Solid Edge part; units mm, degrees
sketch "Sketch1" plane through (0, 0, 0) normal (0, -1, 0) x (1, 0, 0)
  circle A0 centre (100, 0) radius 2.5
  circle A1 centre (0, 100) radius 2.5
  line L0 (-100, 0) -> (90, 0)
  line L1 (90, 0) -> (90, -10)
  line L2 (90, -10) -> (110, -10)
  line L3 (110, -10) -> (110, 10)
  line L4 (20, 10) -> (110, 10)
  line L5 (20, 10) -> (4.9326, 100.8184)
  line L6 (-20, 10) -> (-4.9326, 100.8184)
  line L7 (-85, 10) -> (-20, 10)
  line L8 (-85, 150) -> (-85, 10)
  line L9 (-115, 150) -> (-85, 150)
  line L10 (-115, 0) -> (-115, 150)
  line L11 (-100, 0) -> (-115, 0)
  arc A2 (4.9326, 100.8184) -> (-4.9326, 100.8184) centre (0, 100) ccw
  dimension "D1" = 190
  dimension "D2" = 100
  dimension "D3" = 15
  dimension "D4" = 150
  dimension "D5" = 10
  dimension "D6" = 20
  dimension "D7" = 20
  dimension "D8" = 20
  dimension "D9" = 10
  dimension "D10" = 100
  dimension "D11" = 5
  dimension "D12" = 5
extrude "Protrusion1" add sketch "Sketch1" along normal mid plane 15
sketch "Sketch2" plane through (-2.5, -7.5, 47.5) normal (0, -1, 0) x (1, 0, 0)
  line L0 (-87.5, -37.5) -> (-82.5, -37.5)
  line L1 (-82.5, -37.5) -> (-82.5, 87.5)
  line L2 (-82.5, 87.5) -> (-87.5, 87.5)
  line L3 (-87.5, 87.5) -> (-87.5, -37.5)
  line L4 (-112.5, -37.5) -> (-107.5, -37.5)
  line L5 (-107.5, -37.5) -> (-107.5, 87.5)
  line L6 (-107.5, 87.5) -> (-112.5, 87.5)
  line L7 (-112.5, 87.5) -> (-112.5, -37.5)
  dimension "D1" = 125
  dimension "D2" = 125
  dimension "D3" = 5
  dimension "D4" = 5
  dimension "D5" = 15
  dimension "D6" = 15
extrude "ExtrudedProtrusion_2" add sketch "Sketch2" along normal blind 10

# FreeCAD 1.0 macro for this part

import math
import FreeCAD as App
import Part
import Sketcher
Q = App.Units.Quantity


def add_polygon(sketch, points):
    """Adds a closed chain of lines whose ends are joined by coincident constraints."""
    first, n = sketch.GeometryCount, len(points)
    for a, b in zip(points, points[1:] + points[:1]):
        sketch.addGeometry(Part.LineSegment(App.Vector(*a, 0), App.Vector(*b, 0)), False)
    for i in range(n):
        sketch.addConstraint(Sketcher.Constraint("Coincident", first + i, 2, first + (i + 1) % n, 1))

doc = App.newDocument("Part")
body = doc.addObject("PartDesign::Body", "Body")

# Sketch on XZ plane
sketch1 = body.newObject("Sketcher::SketchObject", "Sketch")
sketch1.AttachmentSupport = (doc.getObject("XZ_Plane"), [""])
sketch1.MapMode = "FlatFace"
sketch1.addGeometry([
    Part.LineSegment(App.Vector(-115, 0, 0), App.Vector(90, 0, 0)),  # 0
    Part.LineSegment(App.Vector(90, 0, 0), App.Vector(90, -10, 0)),  # 1
    Part.LineSegment(App.Vector(90, -10, 0), App.Vector(110, -10, 0)),  # 2
    Part.LineSegment(App.Vector(110, -10, 0), App.Vector(110, 10, 0)),  # 3
    Part.LineSegment(App.Vector(110, 10, 0), App.Vector(20, 10, 0)),  # 4
    Part.LineSegment(App.Vector(20, 10, 0), App.Vector(4.9, 100.8, 0)),  # 5
    Part.ArcOfCircle(Part.Circle(App.Vector(0, 100, 0), App.Vector(0, 0, 1), 5), math.radians(9), math.radians(171)),  # 6
    Part.LineSegment(App.Vector(-4.9, 100.8, 0), App.Vector(-20, 10, 0)),  # 7
    Part.LineSegment(App.Vector(-20, 10, 0), App.Vector(-85, 10, 0)),  # 8
    Part.LineSegment(App.Vector(-85, 10, 0), App.Vector(-85, 150, 0)),  # 9
    Part.LineSegment(App.Vector(-85, 150, 0), App.Vector(-115, 150, 0)),  # 10
    Part.LineSegment(App.Vector(-115, 150, 0), App.Vector(-115, 0, 0)),  # 11
    Part.Circle(App.Vector(100, 0, 0), App.Vector(0, 0, 1), 2.5),  # 12
    Part.Circle(App.Vector(0, 100, 0), App.Vector(0, 0, 1), 2.5),  # 13
], False)
sketch1.addConstraint([
    Sketcher.Constraint("Coincident", 0, 2, 1, 1),
    Sketcher.Constraint("Coincident", 1, 2, 2, 1),
    Sketcher.Constraint("Coincident", 2, 2, 3, 1),
    Sketcher.Constraint("Coincident", 3, 2, 4, 1),
    Sketcher.Constraint("Coincident", 4, 2, 5, 1),
    Sketcher.Constraint("Tangent", 5, 2, 6, 1),
    Sketcher.Constraint("Tangent", 6, 2, 7, 1),
    Sketcher.Constraint("Coincident", 7, 2, 8, 1),
    Sketcher.Constraint("Coincident", 8, 2, 9, 1),
    Sketcher.Constraint("Coincident", 9, 2, 10, 1),
    Sketcher.Constraint("Coincident", 10, 2, 11, 1),
    Sketcher.Constraint("Coincident", 11, 2, 0, 1),
    Sketcher.Constraint("Horizontal", 0),
    Sketcher.Constraint("Vertical", 1),
    Sketcher.Constraint("Horizontal", 2),
    Sketcher.Constraint("Vertical", 3),
    Sketcher.Constraint("Horizontal", 4),
    Sketcher.Constraint("Horizontal", 8),
    Sketcher.Constraint("Vertical", 9),
    Sketcher.Constraint("Horizontal", 10),
    Sketcher.Constraint("Vertical", 11),
    Sketcher.Constraint("Coincident", 13, 3, 6, 3),
    Sketcher.Constraint("Equal", 12, 13),
    Sketcher.Constraint("Symmetric", 5, 2, 6, 2, -2),
    Sketcher.Constraint("PointOnObject", 12, 3, -1),
    Sketcher.Constraint("PointOnObject", 0, 2, -1),
    Sketcher.Constraint("Horizontal", 4, 2, 7, 2),
    Sketcher.Constraint("Equal", 2, 3),
    Sketcher.Constraint("DistanceX", 2, 1, 2, 2, Q("20 mm")),
    Sketcher.Constraint("DistanceX", 4, 2, 4, 1, Q("90 mm")),
    Sketcher.Constraint("Diameter", 12, Q("5 mm")),
    Sketcher.Constraint("DistanceY", -1, 1, 6, 3, Q("100 mm")),
    Sketcher.Constraint("DistanceX", -1, 1, 12, 3, Q("100 mm")),
    Sketcher.Constraint("DistanceX", -1, 1, 0, 2, Q("90 mm")),
    Sketcher.Constraint("DistanceX", 10, 2, -1, 1, Q("115 mm")),
    Sketcher.Constraint("Radius", 6, Q("5 mm")),
    Sketcher.Constraint("DistanceY", 1, 2, 6, 3, Q("110 mm")),
    Sketcher.Constraint("DistanceX", 8, 2, 8, 1, Q("65 mm")),
    Sketcher.Constraint("DistanceY", 9, 1, 9, 2, Q("140 mm")),
])
pad1 = body.newObject("PartDesign::Pad", "Pad")
pad1.Profile = sketch1
pad1.Length = 15
pad1.Midplane = True

# Sketch on XZ plane
sketch2 = body.newObject("Sketcher::SketchObject", "Sketch001")
sketch2.AttachmentSupport = (doc.getObject("XZ_Plane"), [""])
sketch2.MapMode = "FlatFace"
sketch2.AttachmentOffset = App.Placement(App.Vector(0, 0, 7.5), App.Rotation())
add_polygon(sketch2, [(-90, 135), (-90, 10), (-85, 10), (-85, 135)])  # lines 0-3
add_polygon(sketch2, [(-115, 135), (-115, 10), (-110, 10), (-110, 135)])  # lines 4-7
sketch2.addConstraint([
    Sketcher.Constraint("Vertical", 0),
    Sketcher.Constraint("Horizontal", 1),
    Sketcher.Constraint("Vertical", 2),
    Sketcher.Constraint("Horizontal", 3),
    Sketcher.Constraint("Vertical", 4),
    Sketcher.Constraint("Horizontal", 5),
    Sketcher.Constraint("Vertical", 6),
    Sketcher.Constraint("Horizontal", 7),
    Sketcher.Constraint("Horizontal", 1, 2, 4, 2),
    Sketcher.Constraint("Horizontal", 3, 2, 6, 2),
    Sketcher.Constraint("Equal", 3, 5),
    Sketcher.Constraint("DistanceX", 1, 1, 1, 2, Q("5 mm")),
    Sketcher.Constraint("DistanceY", 0, 2, 0, 1, Q("125 mm")),
    Sketcher.Constraint("DistanceX", 0, 2, -1, 1, Q("90 mm")),
    Sketcher.Constraint("DistanceY", -1, 1, 0, 2, Q("10 mm")),
    Sketcher.Constraint("DistanceX", 4, 2, -1, 1, Q("115 mm")),
])
pad2 = body.newObject("PartDesign::Pad", "Pad001")
pad2.Profile = sketch2
pad2.Length = 10

doc.recompute()
